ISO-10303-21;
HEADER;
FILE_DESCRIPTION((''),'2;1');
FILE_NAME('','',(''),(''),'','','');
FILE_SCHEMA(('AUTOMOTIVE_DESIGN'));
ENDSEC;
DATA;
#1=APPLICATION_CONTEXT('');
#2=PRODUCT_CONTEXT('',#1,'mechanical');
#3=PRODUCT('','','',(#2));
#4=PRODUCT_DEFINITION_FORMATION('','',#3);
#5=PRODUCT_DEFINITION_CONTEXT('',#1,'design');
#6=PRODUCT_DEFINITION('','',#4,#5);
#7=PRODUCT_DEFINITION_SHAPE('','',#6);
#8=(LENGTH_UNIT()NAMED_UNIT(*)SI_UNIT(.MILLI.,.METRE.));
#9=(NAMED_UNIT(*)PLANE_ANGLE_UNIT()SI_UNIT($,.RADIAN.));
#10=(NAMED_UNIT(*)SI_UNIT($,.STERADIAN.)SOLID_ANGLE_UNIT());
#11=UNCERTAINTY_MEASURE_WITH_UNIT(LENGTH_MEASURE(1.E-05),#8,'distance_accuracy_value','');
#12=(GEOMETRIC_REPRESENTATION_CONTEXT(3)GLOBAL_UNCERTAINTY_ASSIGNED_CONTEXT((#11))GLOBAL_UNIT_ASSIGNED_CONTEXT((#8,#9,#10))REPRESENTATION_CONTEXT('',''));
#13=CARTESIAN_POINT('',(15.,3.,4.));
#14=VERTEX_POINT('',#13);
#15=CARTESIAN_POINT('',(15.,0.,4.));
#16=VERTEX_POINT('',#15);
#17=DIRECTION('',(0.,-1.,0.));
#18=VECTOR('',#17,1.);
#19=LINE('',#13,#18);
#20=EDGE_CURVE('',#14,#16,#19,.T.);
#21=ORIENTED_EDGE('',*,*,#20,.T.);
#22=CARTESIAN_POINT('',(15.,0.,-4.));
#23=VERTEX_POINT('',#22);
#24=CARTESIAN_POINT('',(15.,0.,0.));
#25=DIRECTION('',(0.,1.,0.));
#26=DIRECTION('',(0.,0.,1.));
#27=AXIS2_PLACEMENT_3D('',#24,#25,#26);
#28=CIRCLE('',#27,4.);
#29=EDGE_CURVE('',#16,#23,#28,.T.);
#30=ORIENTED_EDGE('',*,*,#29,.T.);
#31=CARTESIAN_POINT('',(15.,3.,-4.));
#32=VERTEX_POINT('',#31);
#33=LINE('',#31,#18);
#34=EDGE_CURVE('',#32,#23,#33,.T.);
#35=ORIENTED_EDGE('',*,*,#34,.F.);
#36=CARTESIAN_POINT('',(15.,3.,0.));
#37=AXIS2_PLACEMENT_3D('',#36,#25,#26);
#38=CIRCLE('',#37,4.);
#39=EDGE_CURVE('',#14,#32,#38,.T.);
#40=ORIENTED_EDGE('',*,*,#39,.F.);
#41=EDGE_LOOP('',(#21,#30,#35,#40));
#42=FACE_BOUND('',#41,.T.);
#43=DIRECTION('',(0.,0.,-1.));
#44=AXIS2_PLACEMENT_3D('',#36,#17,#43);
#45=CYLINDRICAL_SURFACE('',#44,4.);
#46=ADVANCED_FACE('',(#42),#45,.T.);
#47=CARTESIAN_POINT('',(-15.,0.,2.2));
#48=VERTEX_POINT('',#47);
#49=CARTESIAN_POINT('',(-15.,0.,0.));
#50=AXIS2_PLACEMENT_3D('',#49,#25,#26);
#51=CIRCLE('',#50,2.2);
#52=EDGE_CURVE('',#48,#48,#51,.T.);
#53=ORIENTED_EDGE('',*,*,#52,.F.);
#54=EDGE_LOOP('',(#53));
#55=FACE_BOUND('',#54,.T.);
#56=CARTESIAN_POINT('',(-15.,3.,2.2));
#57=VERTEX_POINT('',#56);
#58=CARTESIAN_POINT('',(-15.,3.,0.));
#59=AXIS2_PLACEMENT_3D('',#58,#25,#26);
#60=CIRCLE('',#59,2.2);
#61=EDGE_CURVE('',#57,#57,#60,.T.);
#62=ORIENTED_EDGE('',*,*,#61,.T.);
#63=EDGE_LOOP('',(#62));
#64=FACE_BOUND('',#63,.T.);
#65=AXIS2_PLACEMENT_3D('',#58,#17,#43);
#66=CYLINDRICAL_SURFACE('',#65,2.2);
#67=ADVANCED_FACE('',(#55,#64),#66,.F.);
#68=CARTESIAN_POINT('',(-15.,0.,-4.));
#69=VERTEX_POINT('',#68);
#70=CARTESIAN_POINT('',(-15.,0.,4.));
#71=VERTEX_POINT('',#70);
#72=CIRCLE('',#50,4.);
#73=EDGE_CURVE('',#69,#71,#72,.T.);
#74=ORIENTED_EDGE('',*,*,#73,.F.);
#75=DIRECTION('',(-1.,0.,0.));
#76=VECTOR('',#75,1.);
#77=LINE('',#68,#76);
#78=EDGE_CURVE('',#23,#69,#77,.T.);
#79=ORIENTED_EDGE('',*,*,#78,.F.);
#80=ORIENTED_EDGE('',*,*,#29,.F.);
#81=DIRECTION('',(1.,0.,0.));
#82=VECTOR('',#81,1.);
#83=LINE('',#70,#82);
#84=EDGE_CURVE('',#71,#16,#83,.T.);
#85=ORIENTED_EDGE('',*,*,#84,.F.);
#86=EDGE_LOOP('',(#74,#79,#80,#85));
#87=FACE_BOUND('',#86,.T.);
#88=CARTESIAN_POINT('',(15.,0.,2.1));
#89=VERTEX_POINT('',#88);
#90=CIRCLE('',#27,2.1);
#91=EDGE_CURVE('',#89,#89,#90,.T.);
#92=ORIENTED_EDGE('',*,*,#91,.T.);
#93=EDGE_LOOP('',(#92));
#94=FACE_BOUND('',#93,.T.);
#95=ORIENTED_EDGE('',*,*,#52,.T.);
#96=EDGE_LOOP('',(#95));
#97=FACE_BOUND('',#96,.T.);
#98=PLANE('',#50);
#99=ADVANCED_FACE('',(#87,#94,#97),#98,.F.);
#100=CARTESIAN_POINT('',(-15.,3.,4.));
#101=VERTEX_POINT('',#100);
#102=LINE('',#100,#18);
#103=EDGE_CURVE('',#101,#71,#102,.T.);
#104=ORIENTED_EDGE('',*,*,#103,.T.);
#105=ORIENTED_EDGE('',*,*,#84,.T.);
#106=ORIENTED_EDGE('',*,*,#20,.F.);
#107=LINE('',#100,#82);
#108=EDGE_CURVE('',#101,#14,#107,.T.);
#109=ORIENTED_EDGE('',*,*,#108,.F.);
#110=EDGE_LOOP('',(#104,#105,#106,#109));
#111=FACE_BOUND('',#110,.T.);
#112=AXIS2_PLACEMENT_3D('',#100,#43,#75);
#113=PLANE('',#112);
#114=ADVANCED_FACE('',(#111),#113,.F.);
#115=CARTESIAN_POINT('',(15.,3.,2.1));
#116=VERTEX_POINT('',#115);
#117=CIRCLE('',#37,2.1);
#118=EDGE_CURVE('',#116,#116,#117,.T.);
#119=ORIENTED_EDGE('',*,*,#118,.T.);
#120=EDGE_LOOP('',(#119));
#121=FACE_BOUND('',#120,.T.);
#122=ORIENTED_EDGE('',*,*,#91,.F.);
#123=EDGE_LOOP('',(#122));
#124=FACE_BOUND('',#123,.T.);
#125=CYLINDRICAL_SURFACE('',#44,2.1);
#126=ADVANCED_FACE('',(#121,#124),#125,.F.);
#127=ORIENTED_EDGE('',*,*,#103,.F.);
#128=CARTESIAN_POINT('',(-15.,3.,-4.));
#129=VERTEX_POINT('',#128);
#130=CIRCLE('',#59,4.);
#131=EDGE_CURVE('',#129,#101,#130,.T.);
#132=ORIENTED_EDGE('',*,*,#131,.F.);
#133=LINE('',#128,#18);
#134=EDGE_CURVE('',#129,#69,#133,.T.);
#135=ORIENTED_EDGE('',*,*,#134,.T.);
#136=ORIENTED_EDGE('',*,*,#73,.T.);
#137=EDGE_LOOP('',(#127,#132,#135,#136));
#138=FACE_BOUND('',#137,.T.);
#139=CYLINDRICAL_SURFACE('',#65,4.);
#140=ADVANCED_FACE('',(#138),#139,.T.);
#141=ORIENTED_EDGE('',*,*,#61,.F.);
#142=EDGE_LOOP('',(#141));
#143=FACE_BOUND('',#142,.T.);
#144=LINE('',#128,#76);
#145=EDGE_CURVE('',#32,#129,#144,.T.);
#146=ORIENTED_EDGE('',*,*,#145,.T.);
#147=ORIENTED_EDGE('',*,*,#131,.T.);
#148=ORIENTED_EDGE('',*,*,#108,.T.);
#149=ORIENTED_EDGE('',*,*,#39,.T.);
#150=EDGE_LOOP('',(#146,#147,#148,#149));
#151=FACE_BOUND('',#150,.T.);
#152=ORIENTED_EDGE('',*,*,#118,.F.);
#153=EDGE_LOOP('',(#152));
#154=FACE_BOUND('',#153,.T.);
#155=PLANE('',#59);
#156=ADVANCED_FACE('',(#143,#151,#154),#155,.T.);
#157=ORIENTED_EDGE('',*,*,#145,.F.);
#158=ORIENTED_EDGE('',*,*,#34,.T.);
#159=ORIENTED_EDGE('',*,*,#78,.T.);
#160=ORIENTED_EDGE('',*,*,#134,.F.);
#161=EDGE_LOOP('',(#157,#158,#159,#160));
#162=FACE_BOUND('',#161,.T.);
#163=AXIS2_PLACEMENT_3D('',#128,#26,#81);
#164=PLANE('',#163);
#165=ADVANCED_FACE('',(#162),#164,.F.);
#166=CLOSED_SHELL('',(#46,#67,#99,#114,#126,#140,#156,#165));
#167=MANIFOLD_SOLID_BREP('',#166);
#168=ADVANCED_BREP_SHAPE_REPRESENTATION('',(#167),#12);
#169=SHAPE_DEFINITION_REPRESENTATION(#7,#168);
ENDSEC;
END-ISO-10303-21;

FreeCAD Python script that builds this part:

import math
import FreeCAD as App
import Part
import Sketcher

V = App.Vector

doc = App.newDocument("Part")
params = doc.addObject("Spreadsheet::Sheet", "Params")
for row, (alias, value) in enumerate([
    ("sketch1_radius", "4 mm"),
    ("sketch1_diameter", "4.2 mm"),
    ("sketch1_diameter2", "4.4 mm"),
    ("sketch1_width", "30 mm"),
    ("pad1_length", "3 mm"),
], start=1):
    params.set(f"A{row}", alias)
    params.set(f"B{row}", "=" + value)
    params.setAlias(f"B{row}", alias)

body = doc.addObject("PartDesign::Body", "Body")

# Sketch on XZ plane
sketch1 = body.newObject("Sketcher::SketchObject", "Sketch")
sketch1.AttachmentSupport = (doc.getObject("XZ_Plane"), [""])
sketch1.MapMode = "FlatFace"
sketch1.addGeometry([
    Part.LineSegment(V(15, -4, 0), V(-15, -4, 0)),  # 0
    Part.ArcOfCircle(Part.Circle(V(-15, 0, 0), V(0, 0, 1), 4), math.radians(90), math.radians(270)),  # 1
    Part.LineSegment(V(-15, 4, 0), V(15, 4, 0)),  # 2
    Part.ArcOfCircle(Part.Circle(V(15, 0, 0), V(0, 0, 1), 4), math.radians(-90), math.radians(90)),  # 3
    Part.Circle(V(15, 0, 0), V(0, 0, 1), 2.1),  # 4
    Part.Circle(V(-15, 0, 0), V(0, 0, 1), 2.2),  # 5
], False)
sketch1.addConstraint([
    Sketcher.Constraint("Tangent", 0, 2, 1, 2),
    Sketcher.Constraint("Tangent", 1, 1, 2, 1),
    Sketcher.Constraint("Tangent", 2, 2, 3, 2),
    Sketcher.Constraint("Tangent", 3, 1, 0, 1),
    Sketcher.Constraint("Horizontal", 0),
    Sketcher.Constraint("Horizontal", 2),
    Sketcher.Constraint("Coincident", 4, 3, 3, 3),
    Sketcher.Constraint("Coincident", 5, 3, 1, 3),
    Sketcher.Constraint("Symmetric", 1, 3, 3, 3, -1, 1),
    Sketcher.Constraint("Radius", 1, 4.0),
    Sketcher.Constraint("Diameter", 4, 4.2),
    Sketcher.Constraint("Diameter", 5, 4.4),
    Sketcher.Constraint("DistanceX", 0, 2, 0, 1, 30.0),
])
sketch1.setExpression("Constraints[9]", "Params.sketch1_radius")
sketch1.setExpression("Constraints[10]", "Params.sketch1_diameter")
sketch1.setExpression("Constraints[11]", "Params.sketch1_diameter2")
sketch1.setExpression("Constraints[12]", "Params.sketch1_width")
pad1 = body.newObject("PartDesign::Pad", "Pad")
pad1.Profile = sketch1
pad1.setExpression("Length", "Params.pad1_length")
pad1.Reversed = True

doc.recompute()
